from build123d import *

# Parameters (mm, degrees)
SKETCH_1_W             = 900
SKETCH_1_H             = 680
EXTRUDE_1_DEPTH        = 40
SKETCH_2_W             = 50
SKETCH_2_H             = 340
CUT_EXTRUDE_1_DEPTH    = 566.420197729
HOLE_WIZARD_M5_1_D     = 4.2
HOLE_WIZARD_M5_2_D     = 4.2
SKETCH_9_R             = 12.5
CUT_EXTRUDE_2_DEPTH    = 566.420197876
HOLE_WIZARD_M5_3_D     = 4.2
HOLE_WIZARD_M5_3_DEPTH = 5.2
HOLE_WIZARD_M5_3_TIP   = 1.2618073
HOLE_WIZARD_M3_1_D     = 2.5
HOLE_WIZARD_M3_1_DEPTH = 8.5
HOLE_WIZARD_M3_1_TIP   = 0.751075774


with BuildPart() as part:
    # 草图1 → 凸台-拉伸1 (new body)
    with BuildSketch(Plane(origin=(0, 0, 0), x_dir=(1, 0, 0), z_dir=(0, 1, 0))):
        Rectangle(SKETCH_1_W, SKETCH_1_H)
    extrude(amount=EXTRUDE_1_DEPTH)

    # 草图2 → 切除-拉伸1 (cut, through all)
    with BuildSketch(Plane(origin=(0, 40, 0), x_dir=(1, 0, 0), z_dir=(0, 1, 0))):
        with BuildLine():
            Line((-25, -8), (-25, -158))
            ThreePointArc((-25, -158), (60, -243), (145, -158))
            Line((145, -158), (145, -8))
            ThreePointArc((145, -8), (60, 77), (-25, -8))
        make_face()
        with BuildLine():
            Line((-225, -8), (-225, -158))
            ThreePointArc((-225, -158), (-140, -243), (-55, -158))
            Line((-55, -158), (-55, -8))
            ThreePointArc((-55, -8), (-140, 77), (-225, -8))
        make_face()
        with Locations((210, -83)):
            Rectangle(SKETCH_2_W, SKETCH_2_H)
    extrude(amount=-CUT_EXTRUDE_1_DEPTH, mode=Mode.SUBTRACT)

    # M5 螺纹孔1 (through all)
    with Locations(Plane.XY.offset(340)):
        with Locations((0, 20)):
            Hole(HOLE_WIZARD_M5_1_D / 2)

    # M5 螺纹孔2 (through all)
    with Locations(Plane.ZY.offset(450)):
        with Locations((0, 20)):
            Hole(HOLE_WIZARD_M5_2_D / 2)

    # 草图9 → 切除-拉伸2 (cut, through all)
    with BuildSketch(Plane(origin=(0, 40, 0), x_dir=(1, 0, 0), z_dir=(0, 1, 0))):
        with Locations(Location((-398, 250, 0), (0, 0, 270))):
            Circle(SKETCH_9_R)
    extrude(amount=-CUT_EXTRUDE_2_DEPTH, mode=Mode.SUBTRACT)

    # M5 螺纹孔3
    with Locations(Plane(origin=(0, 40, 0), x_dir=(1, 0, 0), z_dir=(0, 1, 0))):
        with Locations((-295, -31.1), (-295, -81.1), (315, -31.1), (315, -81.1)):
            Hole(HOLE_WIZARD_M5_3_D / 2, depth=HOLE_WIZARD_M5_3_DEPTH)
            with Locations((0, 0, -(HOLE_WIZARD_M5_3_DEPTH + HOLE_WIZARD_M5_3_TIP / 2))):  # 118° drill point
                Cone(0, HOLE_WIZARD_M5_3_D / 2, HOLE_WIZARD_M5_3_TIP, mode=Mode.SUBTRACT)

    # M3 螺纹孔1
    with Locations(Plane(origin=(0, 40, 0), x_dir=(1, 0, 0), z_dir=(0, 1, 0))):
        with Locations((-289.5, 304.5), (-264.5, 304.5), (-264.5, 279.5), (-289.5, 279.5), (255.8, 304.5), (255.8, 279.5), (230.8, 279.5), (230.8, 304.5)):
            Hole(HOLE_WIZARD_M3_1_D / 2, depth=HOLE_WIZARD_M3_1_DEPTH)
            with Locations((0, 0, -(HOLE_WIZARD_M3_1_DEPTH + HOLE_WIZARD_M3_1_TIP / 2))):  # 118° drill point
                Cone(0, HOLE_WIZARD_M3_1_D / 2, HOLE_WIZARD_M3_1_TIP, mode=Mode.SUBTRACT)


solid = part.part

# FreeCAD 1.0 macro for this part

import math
import FreeCAD as App
import Part
import Sketcher


def add_polygon(sketch, points):
    """Adds a closed chain of lines whose ends are joined by coincident constraints."""
    first, n = sketch.GeometryCount, len(points)
    for a, b in zip(points, points[1:] + points[:1]):
        sketch.addGeometry(Part.LineSegment(App.Vector(*a, 0), App.Vector(*b, 0)), False)
    for i in range(n):
        sketch.addConstraint(Sketcher.Constraint("Coincident", first + i, 2, first + (i + 1) % n, 1))

doc = App.newDocument("Part")
params = doc.addObject("Spreadsheet::Sheet", "Params")
for row, (alias, value) in enumerate([
    ("sketch1_width", "900 mm"),
    ("sketch1_height", "680 mm"),
    ("pad1_length", "40 mm"),
    ("sketch2_radius", "85 mm"),
    ("sketch2_width", "50 mm"),
    ("sketch2_height", "150 mm"),
    ("sketch2_height2", "340 mm"),
    ("sketch3_diameter", "4.2 mm"),
    ("hole_diameter", "4.2 mm"),
    ("sketch4_diameter", "4.2 mm"),
    ("hole2_diameter", "4.2 mm"),
    ("sketch5_diameter", "25 mm"),
    ("sketch6_diameter", "4.2 mm"),
    ("hole3_diameter", "4.2 mm"),
    ("hole3_depth", "5.2 mm"),
    ("sketch7_diameter", "2.5 mm"),
    ("hole4_diameter", "2.5 mm"),
    ("hole4_depth", "8.5 mm"),
], start=1):
    params.set(f"A{row}", alias)
    params.set(f"B{row}", "=" + value)
    params.setAlias(f"B{row}", alias)

body = doc.addObject("PartDesign::Body", "Body")

sketch1 = body.newObject("Sketcher::SketchObject", "Sketch")
sketch1.AttachmentSupport = (doc.getObject("XZ_Plane"), [""])
sketch1.MapMode = "FlatFace"
add_polygon(sketch1, [(-450, -340), (-450, 340), (450, 340), (450, -340)])
sketch1.addConstraint(Sketcher.Constraint("Vertical", 0))
sketch1.addConstraint(Sketcher.Constraint("Horizontal", 1))
sketch1.addConstraint(Sketcher.Constraint("Vertical", 2))
sketch1.addConstraint(Sketcher.Constraint("Horizontal", 3))
sketch1.addConstraint(Sketcher.Constraint("Symmetric", 0, 2, 2, 2, -1, 1))
sketch1.addConstraint(Sketcher.Constraint("DistanceX", 1, 1, 1, 2, 900.0))
sketch1.addConstraint(Sketcher.Constraint("DistanceY", 0, 1, 0, 2, 680.0))
sketch1.setExpression("Constraints[9]", "Params.sketch1_width")
sketch1.setExpression("Constraints[10]", "Params.sketch1_height")
pad1 = body.newObject("PartDesign::Pad", "Pad")
pad1.Profile = sketch1
pad1.setExpression("Length", "Params.pad1_length")
pad1.Reversed = True

sketch2 = body.newObject("Sketcher::SketchObject", "Sketch001")
sketch2.AttachmentSupport = (doc.getObject("XZ_Plane"), [""])
sketch2.MapMode = "FlatFace"
sketch2.AttachmentOffset = App.Placement(App.Vector(0, 0, -40), App.Rotation())
sketch2.addGeometry(Part.LineSegment(App.Vector(-25, 8, 0), App.Vector(-25, 158, 0)), False)
sketch2.addGeometry(Part.ArcOfCircle(Part.Circle(App.Vector(60, 158, 0), App.Vector(0, 0, 1), 85), math.radians(0), math.radians(180)), False)
sketch2.addGeometry(Part.LineSegment(App.Vector(145, 158, 0), App.Vector(145, 8, 0)), False)
sketch2.addGeometry(Part.ArcOfCircle(Part.Circle(App.Vector(60, 8, 0), App.Vector(0, 0, 1), 85), math.radians(180), math.radians(360)), False)
sketch2.addGeometry(Part.LineSegment(App.Vector(-225, 8, 0), App.Vector(-225, 158, 0)), False)
sketch2.addGeometry(Part.ArcOfCircle(Part.Circle(App.Vector(-140, 158, 0), App.Vector(0, 0, 1), 85), math.radians(0), math.radians(180)), False)
sketch2.addGeometry(Part.LineSegment(App.Vector(-55, 158, 0), App.Vector(-55, 8, 0)), False)
sketch2.addGeometry(Part.ArcOfCircle(Part.Circle(App.Vector(-140, 8, 0), App.Vector(0, 0, 1), 85), math.radians(180), math.radians(360)), False)
add_polygon(sketch2, [(185, -87), (185, 253), (235, 253), (235, -87)])
sketch2.addConstraint(Sketcher.Constraint("Tangent", 0, 2, 1, 2))
sketch2.addConstraint(Sketcher.Constraint("Tangent", 1, 1, 2, 1))
sketch2.addConstraint(Sketcher.Constraint("Tangent", 2, 2, 3, 2))
sketch2.addConstraint(Sketcher.Constraint("Tangent", 3, 1, 0, 1))
sketch2.addConstraint(Sketcher.Constraint("Tangent", 4, 2, 5, 2))
sketch2.addConstraint(Sketcher.Constraint("Tangent", 5, 1, 6, 1))
sketch2.addConstraint(Sketcher.Constraint("Tangent", 6, 2, 7, 2))
sketch2.addConstraint(Sketcher.Constraint("Tangent", 7, 1, 4, 1))
sketch2.addConstraint(Sketcher.Constraint("Vertical", 0))
sketch2.addConstraint(Sketcher.Constraint("Vertical", 2))
sketch2.addConstraint(Sketcher.Constraint("Vertical", 4))
sketch2.addConstraint(Sketcher.Constraint("Vertical", 6))
sketch2.addConstraint(Sketcher.Constraint("Vertical", 8))
sketch2.addConstraint(Sketcher.Constraint("Horizontal", 9))
sketch2.addConstraint(Sketcher.Constraint("Vertical", 10))
sketch2.addConstraint(Sketcher.Constraint("Horizontal", 11))
sketch2.addConstraint(Sketcher.Constraint("Equal", 3, 5))
sketch2.addConstraint(Sketcher.Constraint("Horizontal", 1, 3, 5, 3))
sketch2.addConstraint(Sketcher.Constraint("Horizontal", 3, 3, 7, 3))
sketch2.addConstraint(Sketcher.Constraint("Radius", 1, 85.0))
sketch2.addConstraint(Sketcher.Constraint("DistanceX", 9, 1, 9, 2, 50.0))
sketch2.addConstraint(Sketcher.Constraint("DistanceY", 0, 1, 0, 2, 150.0))
sketch2.addConstraint(Sketcher.Constraint("DistanceY", 8, 1, 8, 2, 340.0))
sketch2.addConstraint(Sketcher.Constraint("DistanceX", -1, 1, 1, 3, 60.0))
sketch2.addConstraint(Sketcher.Constraint("DistanceY", -1, 1, 1, 3, 158.0))
sketch2.addConstraint(Sketcher.Constraint("DistanceX", 5, 3, -1, 1, 140.0))
sketch2.addConstraint(Sketcher.Constraint("DistanceX", -1, 1, 8, 2, 185.0))
sketch2.addConstraint(Sketcher.Constraint("DistanceY", -1, 1, 8, 2, 253.0))
sketch2.setExpression("Constraints[23]", "Params.sketch2_radius")
sketch2.setExpression("Constraints[24]", "Params.sketch2_width")
sketch2.setExpression("Constraints[25]", "Params.sketch2_height")
sketch2.setExpression("Constraints[26]", "Params.sketch2_height2")
pocket1 = body.newObject("PartDesign::Pocket", "Pocket")
pocket1.Profile = sketch2
pocket1.Type = "ThroughAll"
pocket1.Reversed = True

sketch3 = body.newObject("Sketcher::SketchObject", "Sketch002")
sketch3.AttachmentSupport = (doc.getObject("XY_Plane"), [""])
sketch3.MapMode = "FlatFace"
sketch3.AttachmentOffset = App.Placement(App.Vector(0, 0, 340), App.Rotation())
sketch3.addGeometry(Part.Circle(App.Vector(0, 20, 0), App.Vector(0, 0, 1), 2.1), False)
sketch3.addConstraint(Sketcher.Constraint("PointOnObject", 0, 3, -2))
sketch3.addConstraint(Sketcher.Constraint("Diameter", 0, 4.2))
sketch3.addConstraint(Sketcher.Constraint("DistanceY", -1, 1, 0, 3, 20.0))
sketch3.setExpression("Constraints[1]", "Params.sketch3_diameter")
doc.recompute()
hole = body.newObject("PartDesign::Hole", "Hole")
hole.Profile = sketch3
hole.ThreadType = "None"
hole.setExpression("Diameter", "Params.hole_diameter")
hole.DepthType = "ThroughAll"

sketch4 = body.newObject("Sketcher::SketchObject", "Sketch003")
sketch4.AttachmentSupport = (doc.getObject("YZ_Plane"), [""])
sketch4.MapMode = "FlatFace"
sketch4.AttachmentOffset = App.Placement(App.Vector(0, 0, -450), App.Rotation())
sketch4.addGeometry(Part.Circle(App.Vector(20, 0, 0), App.Vector(0, 0, 1), 2.1), False)
sketch4.addConstraint(Sketcher.Constraint("PointOnObject", 0, 3, -1))
sketch4.addConstraint(Sketcher.Constraint("Diameter", 0, 4.2))
sketch4.addConstraint(Sketcher.Constraint("DistanceX", -1, 1, 0, 3, 20.0))
sketch4.setExpression("Constraints[1]", "Params.sketch4_diameter")
doc.recompute()
hole2 = body.newObject("PartDesign::Hole", "Hole001")
hole2.Profile = sketch4
hole2.ThreadType = "None"
hole2.setExpression("Diameter", "Params.hole2_diameter")
hole2.DepthType = "ThroughAll"
hole2.Reversed = True

sketch5 = body.newObject("Sketcher::SketchObject", "Sketch004")
sketch5.AttachmentSupport = (doc.getObject("XZ_Plane"), [""])
sketch5.MapMode = "FlatFace"
sketch5.AttachmentOffset = App.Placement(App.Vector(0, 0, -40), App.Rotation())
sketch5.addGeometry(Part.Circle(App.Vector(-398, -250, 0), App.Vector(0, 0, 1), 12.5), False)
sketch5.addConstraint(Sketcher.Constraint("Diameter", 0, 25.0))
sketch5.addConstraint(Sketcher.Constraint("DistanceX", 0, 3, -1, 1, 398.0))
sketch5.addConstraint(Sketcher.Constraint("DistanceY", 0, 3, -1, 1, 250.0))
sketch5.setExpression("Constraints[0]", "Params.sketch5_diameter")
pocket2 = body.newObject("PartDesign::Pocket", "Pocket001")
pocket2.Profile = sketch5
pocket2.Type = "ThroughAll"
pocket2.Reversed = True

sketch6 = body.newObject("Sketcher::SketchObject", "Sketch005")
sketch6.AttachmentSupport = (doc.getObject("XZ_Plane"), [""])
sketch6.MapMode = "FlatFace"
sketch6.AttachmentOffset = App.Placement(App.Vector(0, 0, -40), App.Rotation())
sketch6.addGeometry(Part.Circle(App.Vector(-295, 31.1, 0), App.Vector(0, 0, 1), 2.1), False)
sketch6.addGeometry(Part.Circle(App.Vector(-295, 81.1, 0), App.Vector(0, 0, 1), 2.1), False)
sketch6.addGeometry(Part.Circle(App.Vector(315, 31.1, 0), App.Vector(0, 0, 1), 2.1), False)
sketch6.addGeometry(Part.Circle(App.Vector(315, 81.1, 0), App.Vector(0, 0, 1), 2.1), False)
sketch6.addConstraint(Sketcher.Constraint("Equal", 0, 1))
sketch6.addConstraint(Sketcher.Constraint("Equal", 1, 2))
sketch6.addConstraint(Sketcher.Constraint("Equal", 2, 3))
sketch6.addConstraint(Sketcher.Constraint("Horizontal", 0, 3, 2, 3))
sketch6.addConstraint(Sketcher.Constraint("Horizontal", 1, 3, 3, 3))
sketch6.addConstraint(Sketcher.Constraint("Vertical", 0, 3, 1, 3))
sketch6.addConstraint(Sketcher.Constraint("Vertical", 2, 3, 3, 3))
sketch6.addConstraint(Sketcher.Constraint("Diameter", 0, 4.2))
sketch6.addConstraint(Sketcher.Constraint("DistanceX", 0, 3, -1, 1, 295.0))
sketch6.addConstraint(Sketcher.Constraint("DistanceX", -1, 1, 2, 3, 315.0))
sketch6.addConstraint(Sketcher.Constraint("DistanceY", 0, 3, 1, 3, 50.0))
sketch6.addConstraint(Sketcher.Constraint("DistanceY", -1, 1, 0, 3, 31.1))
sketch6.setExpression("Constraints[7]", "Params.sketch6_diameter")
doc.recompute()
hole3 = body.newObject("PartDesign::Hole", "Hole002")
hole3.Profile = sketch6
hole3.ThreadType = "None"
hole3.setExpression("Diameter", "Params.hole3_diameter")
hole3.DepthType = "Dimension"
hole3.setExpression("Depth", "Params.hole3_depth")
hole3.DrillPoint = "Angled"
hole3.DrillPointAngle = 118
hole3.Reversed = True

sketch7 = body.newObject("Sketcher::SketchObject", "Sketch006")
sketch7.AttachmentSupport = (doc.getObject("XZ_Plane"), [""])
sketch7.MapMode = "FlatFace"
sketch7.AttachmentOffset = App.Placement(App.Vector(0, 0, -40), App.Rotation())
sketch7.addGeometry(Part.Circle(App.Vector(-289.5, -304.5, 0), App.Vector(0, 0, 1), 1.25), False)
sketch7.addGeometry(Part.Circle(App.Vector(-264.5, -304.5, 0), App.Vector(0, 0, 1), 1.25), False)
sketch7.addGeometry(Part.Circle(App.Vector(-264.5, -279.5, 0), App.Vector(0, 0, 1), 1.25), False)
sketch7.addGeometry(Part.Circle(App.Vector(-289.5, -279.5, 0), App.Vector(0, 0, 1), 1.25), False)
sketch7.addGeometry(Part.Circle(App.Vector(255.8, -304.5, 0), App.Vector(0, 0, 1), 1.25), False)
sketch7.addGeometry(Part.Circle(App.Vector(255.8, -279.5, 0), App.Vector(0, 0, 1), 1.25), False)
sketch7.addGeometry(Part.Circle(App.Vector(230.8, -279.5, 0), App.Vector(0, 0, 1), 1.25), False)
sketch7.addGeometry(Part.Circle(App.Vector(230.8, -304.5, 0), App.Vector(0, 0, 1), 1.25), False)
sketch7.addConstraint(Sketcher.Constraint("Equal", 0, 1))
sketch7.addConstraint(Sketcher.Constraint("Equal", 1, 2))
sketch7.addConstraint(Sketcher.Constraint("Equal", 2, 3))
sketch7.addConstraint(Sketcher.Constraint("Equal", 3, 4))
sketch7.addConstraint(Sketcher.Constraint("Equal", 4, 5))
sketch7.addConstraint(Sketcher.Constraint("Equal", 5, 6))
sketch7.addConstraint(Sketcher.Constraint("Equal", 6, 7))
sketch7.addConstraint(Sketcher.Constraint("Horizontal", 0, 3, 1, 3))
sketch7.addConstraint(Sketcher.Constraint("Horizontal", 2, 3, 3, 3))
sketch7.addConstraint(Sketcher.Constraint("Horizontal", 1, 3, 4, 3))
sketch7.addConstraint(Sketcher.Constraint("Horizontal", 3, 3, 5, 3))
sketch7.addConstraint(Sketcher.Constraint("Horizontal", 5, 3, 6, 3))
sketch7.addConstraint(Sketcher.Constraint("Horizontal", 4, 3, 7, 3))
sketch7.addConstraint(Sketcher.Constraint("Vertical", 1, 3, 2, 3))
sketch7.addConstraint(Sketcher.Constraint("Vertical", 0, 3, 3, 3))
sketch7.addConstraint(Sketcher.Constraint("Vertical", 4, 3, 5, 3))
sketch7.addConstraint(Sketcher.Constraint("Vertical", 6, 3, 7, 3))
sketch7.addConstraint(Sketcher.Constraint("Diameter", 0, 2.5))
sketch7.addConstraint(Sketcher.Constraint("DistanceX", 0, 3, 1, 3, 25.0))
sketch7.addConstraint(Sketcher.Constraint("DistanceY", 1, 3, 2, 3, 25.0))
sketch7.addConstraint(Sketcher.Constraint("DistanceX", 6, 3, 5, 3, 25.0))
sketch7.addConstraint(Sketcher.Constraint("DistanceX", 0, 3, -1, 1, 289.5))
sketch7.addConstraint(Sketcher.Constraint("DistanceY", 0, 3, -1, 1, 304.5))
sketch7.addConstraint(Sketcher.Constraint("DistanceX", -1, 1, 4, 3, 255.8))
sketch7.setExpression("Constraints[17]", "Params.sketch7_diameter")
doc.recompute()
hole4 = body.newObject("PartDesign::Hole", "Hole003")
hole4.Profile = sketch7
hole4.ThreadType = "None"
hole4.setExpression("Diameter", "Params.hole4_diameter")
hole4.DepthType = "Dimension"
hole4.setExpression("Depth", "Params.hole4_depth")
hole4.DrillPoint = "Angled"
hole4.DrillPointAngle = 118
hole4.Reversed = True

doc.recompute()
